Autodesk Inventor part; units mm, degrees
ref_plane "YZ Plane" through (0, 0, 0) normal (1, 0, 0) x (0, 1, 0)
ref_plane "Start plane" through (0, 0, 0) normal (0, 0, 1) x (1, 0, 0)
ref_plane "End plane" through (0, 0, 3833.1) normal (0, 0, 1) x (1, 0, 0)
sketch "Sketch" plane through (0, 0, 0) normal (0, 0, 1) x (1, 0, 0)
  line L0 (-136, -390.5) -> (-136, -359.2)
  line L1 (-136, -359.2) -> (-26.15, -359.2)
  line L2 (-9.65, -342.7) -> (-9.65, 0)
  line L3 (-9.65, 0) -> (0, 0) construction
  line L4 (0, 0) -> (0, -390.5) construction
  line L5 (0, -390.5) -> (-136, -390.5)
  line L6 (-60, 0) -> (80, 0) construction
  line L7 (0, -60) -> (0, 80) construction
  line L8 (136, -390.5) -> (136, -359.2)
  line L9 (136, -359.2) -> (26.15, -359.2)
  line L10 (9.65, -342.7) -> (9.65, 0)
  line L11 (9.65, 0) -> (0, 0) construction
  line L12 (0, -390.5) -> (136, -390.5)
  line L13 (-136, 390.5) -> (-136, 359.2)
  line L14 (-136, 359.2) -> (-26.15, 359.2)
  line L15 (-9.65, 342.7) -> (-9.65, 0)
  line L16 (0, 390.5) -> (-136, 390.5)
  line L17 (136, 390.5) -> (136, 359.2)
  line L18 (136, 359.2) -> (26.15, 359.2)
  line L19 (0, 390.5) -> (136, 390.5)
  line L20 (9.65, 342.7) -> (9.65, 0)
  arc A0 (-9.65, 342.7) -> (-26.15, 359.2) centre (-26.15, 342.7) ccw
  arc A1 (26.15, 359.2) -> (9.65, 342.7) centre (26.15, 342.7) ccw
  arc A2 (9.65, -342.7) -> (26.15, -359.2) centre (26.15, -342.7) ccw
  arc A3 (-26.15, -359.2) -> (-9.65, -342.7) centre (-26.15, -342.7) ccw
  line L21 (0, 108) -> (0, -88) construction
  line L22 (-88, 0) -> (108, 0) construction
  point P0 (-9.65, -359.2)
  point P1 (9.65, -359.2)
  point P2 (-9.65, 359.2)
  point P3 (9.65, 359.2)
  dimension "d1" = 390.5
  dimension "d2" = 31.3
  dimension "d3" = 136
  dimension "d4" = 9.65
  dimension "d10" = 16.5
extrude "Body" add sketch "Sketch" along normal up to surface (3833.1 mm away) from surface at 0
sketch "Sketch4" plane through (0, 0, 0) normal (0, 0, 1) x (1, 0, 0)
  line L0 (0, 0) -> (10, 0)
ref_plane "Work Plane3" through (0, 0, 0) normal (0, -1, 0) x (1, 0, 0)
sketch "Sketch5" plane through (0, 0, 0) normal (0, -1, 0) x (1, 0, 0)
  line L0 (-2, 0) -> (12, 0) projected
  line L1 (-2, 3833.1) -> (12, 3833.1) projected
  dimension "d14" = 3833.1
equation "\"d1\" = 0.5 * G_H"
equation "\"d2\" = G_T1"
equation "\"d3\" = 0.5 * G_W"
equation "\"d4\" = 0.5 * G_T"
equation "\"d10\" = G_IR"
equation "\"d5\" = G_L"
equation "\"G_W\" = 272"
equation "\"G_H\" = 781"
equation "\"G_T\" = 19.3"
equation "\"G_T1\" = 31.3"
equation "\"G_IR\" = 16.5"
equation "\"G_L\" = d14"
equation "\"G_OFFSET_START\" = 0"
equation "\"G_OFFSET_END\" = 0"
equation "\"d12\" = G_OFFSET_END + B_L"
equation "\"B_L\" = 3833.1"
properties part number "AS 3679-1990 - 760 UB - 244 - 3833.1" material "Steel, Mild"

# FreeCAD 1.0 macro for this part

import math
import FreeCAD as App
import Part
import Sketcher

V = App.Vector
Q = App.Units.Quantity

doc = App.newDocument("Part")
params = doc.addObject("Spreadsheet::Sheet", "Params")
for row, (alias, value) in enumerate([
    ("sketch1_radius", "16.5 mm"),
    ("sketch1_height", "31.3 mm"),
    ("pad1_length", "3833.1 mm"),
], start=1):
    params.set(f"A{row}", alias)
    params.set(f"B{row}", "=" + value)
    params.setAlias(f"B{row}", alias)

body = doc.addObject("PartDesign::Body", "Body")

sketch1 = body.newObject("Sketcher::SketchObject", "Sketch")
sketch1.AttachmentSupport = (doc.getObject("XY_Plane"), [""])
sketch1.MapMode = "FlatFace"
sketch1.addGeometry([
    Part.LineSegment(V(-136, -359, 0), V(-136, -390, 0)),
    Part.LineSegment(V(-136, -390, 0), V(136, -390, 0)),
    Part.LineSegment(V(136, -390, 0), V(136, -359, 0)),
    Part.LineSegment(V(136, -359, 0), V(26, -359, 0)),
    Part.ArcOfCircle(Part.Circle(V(26, -343, 0), V(0, 0, 1), 16), math.radians(180), math.radians(270)),
    Part.LineSegment(V(10, -343, 0), V(10, 343, 0)),
    Part.ArcOfCircle(Part.Circle(V(26, 343, 0), V(0, 0, 1), 16), math.radians(90), math.radians(180)),
    Part.LineSegment(V(26, 359, 0), V(136, 359, 0)),
    Part.LineSegment(V(136, 359, 0), V(136, 390, 0)),
    Part.LineSegment(V(136, 390, 0), V(-136, 390, 0)),
    Part.LineSegment(V(-136, 390, 0), V(-136, 359, 0)),
    Part.LineSegment(V(-136, 359, 0), V(-26, 359, 0)),
    Part.ArcOfCircle(Part.Circle(V(-26, 343, 0), V(0, 0, 1), 16), math.radians(0), math.radians(90)),
    Part.LineSegment(V(-10, 343, 0), V(-10, -343, 0)),
    Part.ArcOfCircle(Part.Circle(V(-26, -343, 0), V(0, 0, 1), 16), math.radians(-90), math.radians(0)),
    Part.LineSegment(V(-26, -359, 0), V(-136, -359, 0)),
], False)
sketch1.addConstraint([
    Sketcher.Constraint("Coincident", 0, 2, 1, 1),
    Sketcher.Constraint("Coincident", 1, 2, 2, 1),
    Sketcher.Constraint("Coincident", 2, 2, 3, 1),
    Sketcher.Constraint("Tangent", 3, 2, 4, 2),
    Sketcher.Constraint("Tangent", 4, 1, 5, 1),
    Sketcher.Constraint("Tangent", 5, 2, 6, 2),
    Sketcher.Constraint("Tangent", 6, 1, 7, 1),
    Sketcher.Constraint("Coincident", 7, 2, 8, 1),
    Sketcher.Constraint("Coincident", 8, 2, 9, 1),
    Sketcher.Constraint("Coincident", 9, 2, 10, 1),
    Sketcher.Constraint("Coincident", 10, 2, 11, 1),
    Sketcher.Constraint("Tangent", 11, 2, 12, 2),
    Sketcher.Constraint("Tangent", 12, 1, 13, 1),
    Sketcher.Constraint("Tangent", 13, 2, 14, 2),
    Sketcher.Constraint("Tangent", 14, 1, 15, 1),
    Sketcher.Constraint("Coincident", 15, 2, 0, 1),
    Sketcher.Constraint("Vertical", 0),
    Sketcher.Constraint("Horizontal", 1),
    Sketcher.Constraint("Vertical", 2),
    Sketcher.Constraint("Horizontal", 3),
    Sketcher.Constraint("Vertical", 5),
    Sketcher.Constraint("Horizontal", 7),
    Sketcher.Constraint("Vertical", 8),
    Sketcher.Constraint("Horizontal", 9),
    Sketcher.Constraint("Vertical", 10),
    Sketcher.Constraint("Horizontal", 11),
    Sketcher.Constraint("Vertical", 13),
    Sketcher.Constraint("Horizontal", 15),
    Sketcher.Constraint("Equal", 4, 6),
    Sketcher.Constraint("Equal", 6, 12),
    Sketcher.Constraint("Equal", 12, 14),
    Sketcher.Constraint("Symmetric", 4, 3, 12, 3, -1, 1),
    Sketcher.Constraint("Symmetric", 0, 2, 8, 2, -1, 1),
    Sketcher.Constraint("Symmetric", 7, 2, 10, 2, -2),
    Sketcher.Constraint("Symmetric", 2, 2, 15, 2, -2),
    Sketcher.Constraint("Radius", 4, Q("16.5 mm")),
    Sketcher.Constraint("DistanceY", 0, 2, 0, 1, Q("31.3 mm")),
    Sketcher.Constraint("DistanceX", 0, 2, -1, 1, Q("136 mm")),
    Sketcher.Constraint("DistanceY", 0, 2, -1, 1, Q("390.5 mm")),
    Sketcher.Constraint("DistanceX", -1, 1, 4, 1, Q("9.65 mm")),
])
sketch1.setExpression("Constraints[35]", "Params.sketch1_radius")
sketch1.setExpression("Constraints[36]", "Params.sketch1_height")
pad1 = body.newObject("PartDesign::Pad", "Pad")
pad1.Profile = sketch1
pad1.setExpression("Length", "Params.pad1_length")

doc.recompute()
